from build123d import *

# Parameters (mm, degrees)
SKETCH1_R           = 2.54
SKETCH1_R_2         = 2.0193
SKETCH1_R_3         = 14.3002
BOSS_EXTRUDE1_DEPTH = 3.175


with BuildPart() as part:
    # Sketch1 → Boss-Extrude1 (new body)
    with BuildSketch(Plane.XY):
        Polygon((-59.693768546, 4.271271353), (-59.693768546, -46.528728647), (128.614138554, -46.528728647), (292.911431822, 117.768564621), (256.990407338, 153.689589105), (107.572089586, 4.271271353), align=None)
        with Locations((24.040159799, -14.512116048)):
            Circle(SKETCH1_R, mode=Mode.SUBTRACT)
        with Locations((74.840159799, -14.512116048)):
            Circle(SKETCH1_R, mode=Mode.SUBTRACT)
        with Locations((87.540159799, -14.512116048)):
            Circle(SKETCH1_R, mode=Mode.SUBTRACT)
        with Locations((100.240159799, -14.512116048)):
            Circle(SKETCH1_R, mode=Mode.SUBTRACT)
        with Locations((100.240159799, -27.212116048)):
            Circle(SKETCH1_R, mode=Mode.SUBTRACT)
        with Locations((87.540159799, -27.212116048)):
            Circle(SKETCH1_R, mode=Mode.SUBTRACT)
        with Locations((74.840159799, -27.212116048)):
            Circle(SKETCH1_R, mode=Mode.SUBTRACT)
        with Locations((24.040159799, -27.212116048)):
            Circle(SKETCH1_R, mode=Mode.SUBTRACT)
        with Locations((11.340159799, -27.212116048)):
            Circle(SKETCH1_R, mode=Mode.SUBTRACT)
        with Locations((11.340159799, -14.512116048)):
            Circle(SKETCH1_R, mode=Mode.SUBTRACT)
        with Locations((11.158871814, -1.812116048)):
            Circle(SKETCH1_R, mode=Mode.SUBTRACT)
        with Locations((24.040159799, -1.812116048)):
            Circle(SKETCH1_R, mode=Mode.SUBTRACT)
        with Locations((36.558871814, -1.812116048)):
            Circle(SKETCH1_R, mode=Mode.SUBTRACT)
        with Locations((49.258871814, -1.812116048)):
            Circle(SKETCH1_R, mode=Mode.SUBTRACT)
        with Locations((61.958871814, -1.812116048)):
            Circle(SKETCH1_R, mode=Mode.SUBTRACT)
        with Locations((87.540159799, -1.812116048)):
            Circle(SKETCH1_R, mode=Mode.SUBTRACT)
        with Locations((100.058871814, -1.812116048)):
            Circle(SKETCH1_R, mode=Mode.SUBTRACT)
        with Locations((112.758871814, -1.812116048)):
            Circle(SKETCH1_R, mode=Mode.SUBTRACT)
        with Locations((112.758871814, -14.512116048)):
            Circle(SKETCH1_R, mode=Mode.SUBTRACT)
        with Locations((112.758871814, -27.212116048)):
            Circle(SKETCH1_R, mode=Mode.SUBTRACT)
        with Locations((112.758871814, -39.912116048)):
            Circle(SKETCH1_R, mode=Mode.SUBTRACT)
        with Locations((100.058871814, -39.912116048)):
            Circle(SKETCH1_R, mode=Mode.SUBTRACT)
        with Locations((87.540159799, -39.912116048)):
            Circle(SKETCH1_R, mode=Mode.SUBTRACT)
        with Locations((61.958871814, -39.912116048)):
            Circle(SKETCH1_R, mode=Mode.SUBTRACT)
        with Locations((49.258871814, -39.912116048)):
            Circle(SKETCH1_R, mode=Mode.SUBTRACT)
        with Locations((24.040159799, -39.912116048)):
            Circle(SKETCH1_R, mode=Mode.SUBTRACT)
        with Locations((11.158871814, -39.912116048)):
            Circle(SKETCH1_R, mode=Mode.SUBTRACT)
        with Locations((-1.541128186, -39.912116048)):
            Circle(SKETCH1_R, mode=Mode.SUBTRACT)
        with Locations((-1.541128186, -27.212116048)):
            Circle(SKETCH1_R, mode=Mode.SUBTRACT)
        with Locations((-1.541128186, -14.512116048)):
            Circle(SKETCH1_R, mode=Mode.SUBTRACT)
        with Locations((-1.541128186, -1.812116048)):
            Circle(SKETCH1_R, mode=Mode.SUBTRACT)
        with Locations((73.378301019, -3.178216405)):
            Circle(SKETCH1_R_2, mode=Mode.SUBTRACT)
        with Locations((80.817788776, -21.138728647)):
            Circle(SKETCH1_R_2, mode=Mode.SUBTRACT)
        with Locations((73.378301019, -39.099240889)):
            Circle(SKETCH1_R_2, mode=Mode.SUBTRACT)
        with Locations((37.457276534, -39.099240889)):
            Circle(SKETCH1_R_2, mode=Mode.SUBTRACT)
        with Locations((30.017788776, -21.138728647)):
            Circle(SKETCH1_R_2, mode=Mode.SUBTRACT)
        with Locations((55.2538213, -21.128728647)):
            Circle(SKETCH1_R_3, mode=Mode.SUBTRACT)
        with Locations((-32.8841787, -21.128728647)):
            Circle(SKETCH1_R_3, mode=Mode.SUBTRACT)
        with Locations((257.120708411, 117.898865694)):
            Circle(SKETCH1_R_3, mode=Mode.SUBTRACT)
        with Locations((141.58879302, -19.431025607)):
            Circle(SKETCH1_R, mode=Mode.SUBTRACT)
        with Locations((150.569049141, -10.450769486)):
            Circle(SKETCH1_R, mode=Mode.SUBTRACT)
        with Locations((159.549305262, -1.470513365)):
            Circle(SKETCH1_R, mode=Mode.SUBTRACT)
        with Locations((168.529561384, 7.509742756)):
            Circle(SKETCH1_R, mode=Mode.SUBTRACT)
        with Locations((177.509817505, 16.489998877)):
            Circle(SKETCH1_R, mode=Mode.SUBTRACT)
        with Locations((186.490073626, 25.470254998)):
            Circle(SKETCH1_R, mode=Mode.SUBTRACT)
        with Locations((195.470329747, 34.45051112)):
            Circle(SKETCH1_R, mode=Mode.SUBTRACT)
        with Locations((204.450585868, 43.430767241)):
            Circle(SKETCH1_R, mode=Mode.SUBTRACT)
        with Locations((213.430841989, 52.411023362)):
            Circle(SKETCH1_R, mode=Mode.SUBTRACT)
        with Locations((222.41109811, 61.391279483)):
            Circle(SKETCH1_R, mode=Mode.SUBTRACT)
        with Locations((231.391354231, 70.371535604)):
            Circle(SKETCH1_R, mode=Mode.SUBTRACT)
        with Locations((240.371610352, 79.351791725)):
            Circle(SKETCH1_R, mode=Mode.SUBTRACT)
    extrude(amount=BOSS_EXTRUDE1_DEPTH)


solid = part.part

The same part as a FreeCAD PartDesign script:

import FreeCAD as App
import Part
import Sketcher
Q = App.Units.Quantity


def add_polygon(sketch, points):
    """Adds a closed chain of lines whose ends are joined by coincident constraints."""
    first, n = sketch.GeometryCount, len(points)
    for a, b in zip(points, points[1:] + points[:1]):
        sketch.addGeometry(Part.LineSegment(App.Vector(*a, 0), App.Vector(*b, 0)), False)
    for i in range(n):
        sketch.addConstraint(Sketcher.Constraint("Coincident", first + i, 2, first + (i + 1) % n, 1))

doc = App.newDocument("Part")
body = doc.addObject("PartDesign::Body", "Body")

sketch1 = body.newObject("Sketcher::SketchObject", "Sketch")
sketch1.AttachmentSupport = (doc.getObject("XY_Plane"), [""])
sketch1.MapMode = "FlatFace"
add_polygon(sketch1, [(-59.7, 4.3), (-59.7, -46.5), (128.6, -46.5), (292.9, 117.8), (257, 153.7), (107.6, 4.3)])
sketch1.addGeometry(Part.Circle(App.Vector(-32.9, -21.1, 0), App.Vector(0, 0, 1), 14.3), False)
sketch1.addGeometry(Part.Circle(App.Vector(-1.5, -39.9, 0), App.Vector(0, 0, 1), 2.5), False)
sketch1.addGeometry(Part.Circle(App.Vector(11.2, -39.9, 0), App.Vector(0, 0, 1), 2.5), False)
sketch1.addGeometry(Part.Circle(App.Vector(24, -39.9, 0), App.Vector(0, 0, 1), 2.5), False)
sketch1.addGeometry(Part.Circle(App.Vector(-1.5, -27.2, 0), App.Vector(0, 0, 1), 2.5), False)
sketch1.addGeometry(Part.Circle(App.Vector(11.3, -27.2, 0), App.Vector(0, 0, 1), 2.5), False)
sketch1.addGeometry(Part.Circle(App.Vector(24, -27.2, 0), App.Vector(0, 0, 1), 2.5), False)
sketch1.addGeometry(Part.Circle(App.Vector(30, -21.1, 0), App.Vector(0, 0, 1), 2), False)
sketch1.addGeometry(Part.Circle(App.Vector(-1.5, -14.5, 0), App.Vector(0, 0, 1), 2.5), False)
sketch1.addGeometry(Part.Circle(App.Vector(11.3, -14.5, 0), App.Vector(0, 0, 1), 2.5), False)
sketch1.addGeometry(Part.Circle(App.Vector(24, -14.5, 0), App.Vector(0, 0, 1), 2.5), False)
sketch1.addGeometry(Part.Circle(App.Vector(-1.5, -1.8, 0), App.Vector(0, 0, 1), 2.5), False)
sketch1.addGeometry(Part.Circle(App.Vector(11.2, -1.8, 0), App.Vector(0, 0, 1), 2.5), False)
sketch1.addGeometry(Part.Circle(App.Vector(24, -1.8, 0), App.Vector(0, 0, 1), 2.5), False)
sketch1.addGeometry(Part.Circle(App.Vector(37.5, -39.1, 0), App.Vector(0, 0, 1), 2), False)
sketch1.addGeometry(Part.Circle(App.Vector(49.3, -39.9, 0), App.Vector(0, 0, 1), 2.5), False)
sketch1.addGeometry(Part.Circle(App.Vector(62, -39.9, 0), App.Vector(0, 0, 1), 2.5), False)
sketch1.addGeometry(Part.Circle(App.Vector(55.3, -21.1, 0), App.Vector(0, 0, 1), 14.3), False)
sketch1.addGeometry(Part.Circle(App.Vector(73.4, -39.1, 0), App.Vector(0, 0, 1), 2), False)
sketch1.addGeometry(Part.Circle(App.Vector(87.5, -39.9, 0), App.Vector(0, 0, 1), 2.5), False)
sketch1.addGeometry(Part.Circle(App.Vector(100.1, -39.9, 0), App.Vector(0, 0, 1), 2.5), False)
sketch1.addGeometry(Part.Circle(App.Vector(74.8, -27.2, 0), App.Vector(0, 0, 1), 2.5), False)
sketch1.addGeometry(Part.Circle(App.Vector(87.5, -27.2, 0), App.Vector(0, 0, 1), 2.5), False)
sketch1.addGeometry(Part.Circle(App.Vector(80.8, -21.1, 0), App.Vector(0, 0, 1), 2), False)
sketch1.addGeometry(Part.Circle(App.Vector(100.2, -27.2, 0), App.Vector(0, 0, 1), 2.5), False)
sketch1.addGeometry(Part.Circle(App.Vector(36.6, -1.8, 0), App.Vector(0, 0, 1), 2.5), False)
sketch1.addGeometry(Part.Circle(App.Vector(49.3, -1.8, 0), App.Vector(0, 0, 1), 2.5), False)
sketch1.addGeometry(Part.Circle(App.Vector(62, -1.8, 0), App.Vector(0, 0, 1), 2.5), False)
sketch1.addGeometry(Part.Circle(App.Vector(74.8, -14.5, 0), App.Vector(0, 0, 1), 2.5), False)
sketch1.addGeometry(Part.Circle(App.Vector(87.5, -14.5, 0), App.Vector(0, 0, 1), 2.5), False)
sketch1.addGeometry(Part.Circle(App.Vector(100.2, -14.5, 0), App.Vector(0, 0, 1), 2.5), False)
sketch1.addGeometry(Part.Circle(App.Vector(73.4, -3.2, 0), App.Vector(0, 0, 1), 2), False)
sketch1.addGeometry(Part.Circle(App.Vector(87.5, -1.8, 0), App.Vector(0, 0, 1), 2.5), False)
sketch1.addGeometry(Part.Circle(App.Vector(100.1, -1.8, 0), App.Vector(0, 0, 1), 2.5), False)
sketch1.addGeometry(Part.Circle(App.Vector(112.8, -39.9, 0), App.Vector(0, 0, 1), 2.5), False)
sketch1.addGeometry(Part.Circle(App.Vector(112.8, -27.2, 0), App.Vector(0, 0, 1), 2.5), False)
sketch1.addGeometry(Part.Circle(App.Vector(112.8, -14.5, 0), App.Vector(0, 0, 1), 2.5), False)
sketch1.addGeometry(Part.Circle(App.Vector(141.6, -19.4, 0), App.Vector(0, 0, 1), 2.5), False)
sketch1.addGeometry(Part.Circle(App.Vector(150.6, -10.5, 0), App.Vector(0, 0, 1), 2.5), False)
sketch1.addGeometry(Part.Circle(App.Vector(112.8, -1.8, 0), App.Vector(0, 0, 1), 2.5), False)
sketch1.addGeometry(Part.Circle(App.Vector(159.5, -1.5, 0), App.Vector(0, 0, 1), 2.5), False)
sketch1.addGeometry(Part.Circle(App.Vector(168.5, 7.5, 0), App.Vector(0, 0, 1), 2.5), False)
sketch1.addGeometry(Part.Circle(App.Vector(177.5, 16.5, 0), App.Vector(0, 0, 1), 2.5), False)
sketch1.addGeometry(Part.Circle(App.Vector(186.5, 25.5, 0), App.Vector(0, 0, 1), 2.5), False)
sketch1.addGeometry(Part.Circle(App.Vector(195.5, 34.5, 0), App.Vector(0, 0, 1), 2.5), False)
sketch1.addGeometry(Part.Circle(App.Vector(204.5, 43.4, 0), App.Vector(0, 0, 1), 2.5), False)
sketch1.addGeometry(Part.Circle(App.Vector(213.4, 52.4, 0), App.Vector(0, 0, 1), 2.5), False)
sketch1.addGeometry(Part.Circle(App.Vector(222.4, 61.4, 0), App.Vector(0, 0, 1), 2.5), False)
sketch1.addGeometry(Part.Circle(App.Vector(231.4, 70.4, 0), App.Vector(0, 0, 1), 2.5), False)
sketch1.addGeometry(Part.Circle(App.Vector(240.4, 79.4, 0), App.Vector(0, 0, 1), 2.5), False)
sketch1.addGeometry(Part.Circle(App.Vector(257.1, 117.9, 0), App.Vector(0, 0, 1), 14.3), False)
sketch1.addConstraint(Sketcher.Constraint("Vertical", 0))
sketch1.addConstraint(Sketcher.Constraint("Horizontal", 1))
sketch1.addConstraint(Sketcher.Constraint("Horizontal", 5))
sketch1.addConstraint(Sketcher.Constraint("Equal", 7, 8))
sketch1.addConstraint(Sketcher.Constraint("Equal", 8, 9))
sketch1.addConstraint(Sketcher.Constraint("Equal", 9, 10))
sketch1.addConstraint(Sketcher.Constraint("Equal", 10, 11))
sketch1.addConstraint(Sketcher.Constraint("Equal", 11, 12))
sketch1.addConstraint(Sketcher.Constraint("Equal", 12, 14))
sketch1.addConstraint(Sketcher.Constraint("Equal", 14, 15))
sketch1.addConstraint(Sketcher.Constraint("Equal", 15, 16))
sketch1.addConstraint(Sketcher.Constraint("Equal", 16, 17))
sketch1.addConstraint(Sketcher.Constraint("Equal", 17, 18))
sketch1.addConstraint(Sketcher.Constraint("Equal", 18, 19))
sketch1.addConstraint(Sketcher.Constraint("Equal", 13, 20))
sketch1.addConstraint(Sketcher.Constraint("Equal", 19, 21))
sketch1.addConstraint(Sketcher.Constraint("Equal", 21, 22))
sketch1.addConstraint(Sketcher.Constraint("Equal", 6, 23))
sketch1.addConstraint(Sketcher.Constraint("Equal", 20, 24))
sketch1.addConstraint(Sketcher.Constraint("Equal", 22, 25))
sketch1.addConstraint(Sketcher.Constraint("Equal", 25, 26))
sketch1.addConstraint(Sketcher.Constraint("Equal", 26, 27))
sketch1.addConstraint(Sketcher.Constraint("Equal", 27, 28))
sketch1.addConstraint(Sketcher.Constraint("Equal", 24, 29))
sketch1.addConstraint(Sketcher.Constraint("Equal", 28, 30))
sketch1.addConstraint(Sketcher.Constraint("Equal", 30, 31))
sketch1.addConstraint(Sketcher.Constraint("Equal", 31, 32))
sketch1.addConstraint(Sketcher.Constraint("Equal", 32, 33))
sketch1.addConstraint(Sketcher.Constraint("Equal", 33, 34))
sketch1.addConstraint(Sketcher.Constraint("Equal", 34, 35))
sketch1.addConstraint(Sketcher.Constraint("Equal", 35, 36))
sketch1.addConstraint(Sketcher.Constraint("Equal", 29, 37))
sketch1.addConstraint(Sketcher.Constraint("Equal", 36, 38))
sketch1.addConstraint(Sketcher.Constraint("Equal", 38, 39))
sketch1.addConstraint(Sketcher.Constraint("Equal", 39, 40))
sketch1.addConstraint(Sketcher.Constraint("Equal", 40, 41))
sketch1.addConstraint(Sketcher.Constraint("Equal", 41, 42))
sketch1.addConstraint(Sketcher.Constraint("Equal", 42, 43))
sketch1.addConstraint(Sketcher.Constraint("Equal", 43, 44))
sketch1.addConstraint(Sketcher.Constraint("Equal", 44, 45))
sketch1.addConstraint(Sketcher.Constraint("Equal", 45, 46))
sketch1.addConstraint(Sketcher.Constraint("Equal", 46, 47))
sketch1.addConstraint(Sketcher.Constraint("Equal", 47, 48))
sketch1.addConstraint(Sketcher.Constraint("Equal", 48, 49))
sketch1.addConstraint(Sketcher.Constraint("Equal", 49, 50))
sketch1.addConstraint(Sketcher.Constraint("Equal", 50, 51))
sketch1.addConstraint(Sketcher.Constraint("Equal", 51, 52))
sketch1.addConstraint(Sketcher.Constraint("Equal", 52, 53))
sketch1.addConstraint(Sketcher.Constraint("Equal", 53, 54))
sketch1.addConstraint(Sketcher.Constraint("Equal", 54, 55))
sketch1.addConstraint(Sketcher.Constraint("Equal", 23, 56))
sketch1.addConstraint(Sketcher.Constraint("Perpendicular", 2, 3))
sketch1.addConstraint(Sketcher.Constraint("Perpendicular", 3, 4))
sketch1.addConstraint(Sketcher.Constraint("Horizontal", 7, 3, 8, 3))
sketch1.addConstraint(Sketcher.Constraint("Horizontal", 8, 3, 9, 3))
sketch1.addConstraint(Sketcher.Constraint("Horizontal", 10, 3, 11, 3))
sketch1.addConstraint(Sketcher.Constraint("Horizontal", 11, 3, 12, 3))
sketch1.addConstraint(Sketcher.Constraint("Horizontal", 14, 3, 15, 3))
sketch1.addConstraint(Sketcher.Constraint("Horizontal", 15, 3, 16, 3))
sketch1.addConstraint(Sketcher.Constraint("Horizontal", 17, 3, 18, 3))
sketch1.addConstraint(Sketcher.Constraint("Horizontal", 18, 3, 19, 3))
sketch1.addConstraint(Sketcher.Constraint("Horizontal", 9, 3, 21, 3))
sketch1.addConstraint(Sketcher.Constraint("Horizontal", 21, 3, 22, 3))
sketch1.addConstraint(Sketcher.Constraint("Horizontal", 6, 3, 23, 3))
sketch1.addConstraint(Sketcher.Constraint("Horizontal", 20, 3, 24, 3))
sketch1.addConstraint(Sketcher.Constraint("Horizontal", 22, 3, 25, 3))
sketch1.addConstraint(Sketcher.Constraint("Horizontal", 25, 3, 26, 3))
sketch1.addConstraint(Sketcher.Constraint("Horizontal", 12, 3, 27, 3))
sketch1.addConstraint(Sketcher.Constraint("Horizontal", 27, 3, 28, 3))
sketch1.addConstraint(Sketcher.Constraint("Horizontal", 13, 3, 29, 3))
sketch1.addConstraint(Sketcher.Constraint("Horizontal", 28, 3, 30, 3))
sketch1.addConstraint(Sketcher.Constraint("Horizontal", 19, 3, 31, 3))
sketch1.addConstraint(Sketcher.Constraint("Horizontal", 31, 3, 32, 3))
sketch1.addConstraint(Sketcher.Constraint("Horizontal", 32, 3, 33, 3))
sketch1.addConstraint(Sketcher.Constraint("Horizontal", 16, 3, 34, 3))
sketch1.addConstraint(Sketcher.Constraint("Horizontal", 34, 3, 35, 3))
sketch1.addConstraint(Sketcher.Constraint("Horizontal", 35, 3, 36, 3))
sketch1.addConstraint(Sketcher.Constraint("Horizontal", 33, 3, 38, 3))
sketch1.addConstraint(Sketcher.Constraint("Horizontal", 38, 3, 39, 3))
sketch1.addConstraint(Sketcher.Constraint("Horizontal", 26, 3, 40, 3))
sketch1.addConstraint(Sketcher.Constraint("Horizontal", 30, 3, 41, 3))
sketch1.addConstraint(Sketcher.Constraint("Horizontal", 36, 3, 42, 3))
sketch1.addConstraint(Sketcher.Constraint("Horizontal", 39, 3, 45, 3))
sketch1.addConstraint(Sketcher.Constraint("Vertical", 7, 3, 10, 3))
sketch1.addConstraint(Sketcher.Constraint("Vertical", 9, 3, 12, 3))
sketch1.addConstraint(Sketcher.Constraint("Vertical", 10, 3, 14, 3))
sketch1.addConstraint(Sketcher.Constraint("Vertical", 11, 3, 15, 3))
sketch1.addConstraint(Sketcher.Constraint("Vertical", 12, 3, 16, 3))
sketch1.addConstraint(Sketcher.Constraint("Vertical", 14, 3, 17, 3))
sketch1.addConstraint(Sketcher.Constraint("Vertical", 8, 3, 18, 3))
sketch1.addConstraint(Sketcher.Constraint("Vertical", 16, 3, 19, 3))
sketch1.addConstraint(Sketcher.Constraint("Vertical", 25, 3, 28, 3))
sketch1.addConstraint(Sketcher.Constraint("Vertical", 21, 3, 32, 3))
sketch1.addConstraint(Sketcher.Constraint("Vertical", 22, 3, 33, 3))
sketch1.addConstraint(Sketcher.Constraint("Vertical", 27, 3, 34, 3))
sketch1.addConstraint(Sketcher.Constraint("Vertical", 28, 3, 35, 3))
sketch1.addConstraint(Sketcher.Constraint("Vertical", 30, 3, 36, 3))
sketch1.addConstraint(Sketcher.Constraint("Vertical", 24, 3, 37, 3))
sketch1.addConstraint(Sketcher.Constraint("Vertical", 35, 3, 38, 3))
sketch1.addConstraint(Sketcher.Constraint("Vertical", 26, 3, 39, 3))
sketch1.addConstraint(Sketcher.Constraint("Vertical", 40, 3, 41, 3))
sketch1.addConstraint(Sketcher.Constraint("Vertical", 41, 3, 42, 3))
sketch1.addConstraint(Sketcher.Constraint("Vertical", 42, 3, 45, 3))
sketch1.addConstraint(Sketcher.Constraint("Diameter", 7, Q("0.2 in")))
sketch1.addConstraint(Sketcher.Constraint("DistanceY", 0, 2, 0, 1, Q("2 in")))
sketch1.addConstraint(Sketcher.Constraint("Distance", 3, Q("2 in")))
sketch1.addConstraint(Sketcher.Constraint("Diameter", 6, Q("1.126 in")))
sketch1.addConstraint(Sketcher.Constraint("Diameter", 13, Q("0.159 in")))
sketch1.addConstraint(Sketcher.Constraint("Angle", 2, Q("45 deg")))
sketch1.addConstraint(Sketcher.Constraint("DistanceY", 7, 3, 14, 3, Q("1 in")))
sketch1.addConstraint(Sketcher.Constraint("DistanceY", 10, 3, 17, 3, Q("1 in")))
sketch1.addConstraint(Sketcher.Constraint("DistanceX", 21, 3, 26, 3, Q("2 in")))
sketch1.addConstraint(Sketcher.Constraint("DistanceX", 27, 3, 30, 3, Q("1 in")))
sketch1.addConstraint(Sketcher.Constraint("DistanceX", 18, 3, 31, 3, Q("1 in")))
sketch1.addConstraint(Sketcher.Constraint("DistanceX", 31, 3, 33, 3, Q("1 in")))
sketch1.addConstraint(Sketcher.Constraint("DistanceY", 0, 2, 6, 3, Q("1 in")))
sketch1.addConstraint(Sketcher.Constraint("DistanceX", 7, 3, 8, 3, Q("0.5 in")))
sketch1.addConstraint(Sketcher.Constraint("DistanceY", 7, 3, 10, 3, Q("0.5 in")))
sketch1.addConstraint(Sketcher.Constraint("DistanceX", 11, 3, 9, 3, Q("0.5 in")))
sketch1.addConstraint(Sketcher.Constraint("DistanceX", 21, 3, 22, 3, Q("0.5 in")))
sketch1.addConstraint(Sketcher.Constraint("DistanceX", 27, 3, 25, 3, Q("0.5 in")))
sketch1.addConstraint(Sketcher.Constraint("DistanceX", 26, 3, 40, 3, Q("0.5 in")))
sketch1.addConstraint(Sketcher.Constraint("DistanceX", 5, 2, 5, 1, Q("167.265858 mm")))
sketch1.addConstraint(Sketcher.Constraint("DistanceX", -1, 1, 24, 3, Q("73.378301 mm")))
sketch1.addConstraint(Sketcher.Constraint("DistanceY", -1, 1, 48, 3, Q("16.489999 mm")))
sketch1.addConstraint(Sketcher.Constraint("DistanceX", -1, 1, 53, 3, Q("222.411098 mm")))
sketch1.addConstraint(Sketcher.Constraint("DistanceY", 13, 3, 23, 3, Q("0.01 mm")))
sketch1.addConstraint(Sketcher.Constraint("DistanceY", 34, 3, 37, 3, Q("11.3339 mm")))
sketch1.addConstraint(Sketcher.Constraint("DistanceX", 55, 3, 56, 3, Q("16.749098 mm")))
sketch1.addConstraint(Sketcher.Constraint("DistanceY", 51, 3, 56, 3, Q("74.468098 mm")))
sketch1.addConstraint(Sketcher.Constraint("DistanceY", 2, 2, 56, 3, Q("0.130301 mm")))
sketch1.addConstraint(Sketcher.Constraint("DistanceX", 3, 2, 56, 3, Q("0.130301 mm")))
sketch1.addConstraint(Sketcher.Constraint("Distance", 2, Q("232.35146 mm")))
sketch1.addConstraint(Sketcher.Constraint("DistanceX", 6, 3, -1, 1, Q("32.884179 mm")))
sketch1.addConstraint(Sketcher.Constraint("DistanceY", 6, 3, -1, 1, Q("21.128729 mm")))
sketch1.addConstraint(Sketcher.Constraint("DistanceX", 7, 3, -1, 1, Q("1.541128 mm")))
sketch1.addConstraint(Sketcher.Constraint("DistanceX", -1, 1, 9, 3, Q("24.04016 mm")))
sketch1.addConstraint(Sketcher.Constraint("DistanceX", -1, 1, 13, 3, Q("30.017789 mm")))
sketch1.addConstraint(Sketcher.Constraint("DistanceY", 20, 3, -1, 1, Q("39.099241 mm")))
sketch1.addConstraint(Sketcher.Constraint("DistanceX", -1, 1, 23, 3, Q("55.253821 mm")))
sketch1.addConstraint(Sketcher.Constraint("DistanceX", -1, 1, 25, 3, Q("87.54016 mm")))
sketch1.addConstraint(Sketcher.Constraint("DistanceX", -1, 1, 29, 3, Q("80.817789 mm")))
sketch1.addConstraint(Sketcher.Constraint("DistanceX", -1, 1, 44, 3, Q("150.569049 mm")))
sketch1.addConstraint(Sketcher.Constraint("DistanceY", 44, 3, -1, 1, Q("10.450769 mm")))
sketch1.addConstraint(Sketcher.Constraint("DistanceX", -1, 1, 47, 3, Q("168.529561 mm")))
sketch1.addConstraint(Sketcher.Constraint("DistanceX", -1, 1, 50, 3, Q("195.47033 mm")))
sketch1.addConstraint(Sketcher.Constraint("DistanceY", -1, 1, 50, 3, Q("34.450511 mm")))
sketch1.addConstraint(Sketcher.Constraint("DistanceX", -1, 1, 52, 3, Q("213.430842 mm")))
sketch1.addConstraint(Sketcher.Constraint("DistanceY", -1, 1, 53, 3, Q("61.391279 mm")))
sketch1.addConstraint(Sketcher.Constraint("DistanceX", -1, 1, 55, 3, Q("240.37161 mm")))
sketch1.addConstraint(Sketcher.Constraint("DistanceY", -1, 1, 55, 3, Q("79.351792 mm")))
sketch1.addConstraint(Sketcher.Constraint("DistanceX", 42, 3, 43, 3, Q("28.829921 mm")))
sketch1.addConstraint(Sketcher.Constraint("DistanceY", 43, 3, 42, 3, Q("4.91891 mm")))
sketch1.addConstraint(Sketcher.Constraint("DistanceY", 43, 3, 47, 3, Q("26.940768 mm")))
sketch1.addConstraint(Sketcher.Constraint("DistanceX", 44, 3, 48, 3, Q("26.940768 mm")))
sketch1.addConstraint(Sketcher.Constraint("DistanceX", 46, 3, 49, 3, Q("26.940768 mm")))
sketch1.addConstraint(Sketcher.Constraint("DistanceY", 46, 3, 49, 3, Q("26.940768 mm")))
sketch1.addConstraint(Sketcher.Constraint("DistanceX", 43, 3, 49, 3, Q("44.901281 mm")))
sketch1.addConstraint(Sketcher.Constraint("DistanceY", 43, 3, 49, 3, Q("44.901281 mm")))
sketch1.addConstraint(Sketcher.Constraint("DistanceY", 47, 3, 50, 3, Q("26.940768 mm")))
sketch1.addConstraint(Sketcher.Constraint("DistanceX", 48, 3, 51, 3, Q("26.940768 mm")))
sketch1.addConstraint(Sketcher.Constraint("DistanceY", 49, 3, 52, 3, Q("26.940768 mm")))
sketch1.addConstraint(Sketcher.Constraint("DistanceX", 51, 3, 54, 3, Q("26.940768 mm")))
sketch1.addConstraint(Sketcher.Constraint("DistanceY", 51, 3, 54, 3, Q("26.940768 mm")))
sketch1.addConstraint(Sketcher.Constraint("DistanceX", -1, 1, 20, 3, Q("37.457277 mm")))
pad1 = body.newObject("PartDesign::Pad", "Pad")
pad1.Profile = sketch1
pad1.Length = Q("0.125 in")

doc.recompute()
